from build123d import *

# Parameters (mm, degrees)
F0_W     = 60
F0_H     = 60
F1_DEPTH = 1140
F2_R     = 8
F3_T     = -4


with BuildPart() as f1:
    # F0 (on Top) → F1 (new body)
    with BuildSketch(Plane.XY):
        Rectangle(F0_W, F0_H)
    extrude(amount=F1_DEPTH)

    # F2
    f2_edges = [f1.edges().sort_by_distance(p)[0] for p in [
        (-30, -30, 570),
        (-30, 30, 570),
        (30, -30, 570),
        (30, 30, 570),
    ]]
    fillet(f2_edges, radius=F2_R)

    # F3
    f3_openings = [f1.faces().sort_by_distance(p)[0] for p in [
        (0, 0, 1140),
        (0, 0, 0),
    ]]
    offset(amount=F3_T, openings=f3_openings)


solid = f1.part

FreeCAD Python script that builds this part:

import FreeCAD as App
import Part
import Sketcher
from FreeCAD import Vector


def edges_at(feature, points):
    """Names of the edges that pass closest to the given points."""
    edges = feature.Shape.Edges
    near = lambda p: min(range(len(edges)), key=lambda i: edges[i].distToShape(Part.Vertex(*p))[0])
    return sorted({f"Edge{near(p) + 1}" for p in points})


def faces_at(feature, points):
    """Names of the faces that lie closest to the given points."""
    faces = feature.Shape.Faces
    near = lambda p: min(range(len(faces)), key=lambda i: faces[i].distToShape(Part.Vertex(*p))[0])
    return sorted({f"Face{near(p) + 1}" for p in points})

doc = App.newDocument("Part")
body = doc.addObject("PartDesign::Body", "Body")

# Sketch on XY plane
sketch1 = body.newObject("Sketcher::SketchObject", "Sketch")
sketch1.AttachmentSupport = (doc.getObject("XY_Plane"), [""])
sketch1.MapMode = "FlatFace"
sketch1.addGeometry([
    Part.LineSegment(Vector(-30, 30, 0), Vector(-30, -30, 0)),
    Part.LineSegment(Vector(-30, -30, 0), Vector(30, -30, 0)),
    Part.LineSegment(Vector(30, -30, 0), Vector(30, 30, 0)),
    Part.LineSegment(Vector(30, 30, 0), Vector(-30, 30, 0)),
], False)
sketch1.addConstraint([
    Sketcher.Constraint("Coincident", 0, 2, 1, 1),
    Sketcher.Constraint("Coincident", 1, 2, 2, 1),
    Sketcher.Constraint("Coincident", 2, 2, 3, 1),
    Sketcher.Constraint("Coincident", 3, 2, 0, 1),
    Sketcher.Constraint("Vertical", 0),
    Sketcher.Constraint("Horizontal", 1),
    Sketcher.Constraint("Vertical", 2),
    Sketcher.Constraint("Horizontal", 3),
    Sketcher.Constraint("Symmetric", 0, 2, 2, 2, -1, 1),
    Sketcher.Constraint("Equal", 3, 0),
    Sketcher.Constraint("DistanceX", 1, 1, 1, 2, 60.0),
])
pad1 = body.newObject("PartDesign::Pad", "Pad")
pad1.Profile = sketch1
pad1.Length = 1140
doc.recompute()

fillet = body.newObject("PartDesign::Fillet", "Fillet")
fillet.Base = (pad1, edges_at(pad1, [
    (-30, -30, 570),
    (-30, 30, 570),
    (30, -30, 570),
    (30, 30, 570),
]))
fillet.Radius = 8
doc.recompute()

thickness = body.newObject("PartDesign::Thickness", "Thickness")
thickness.Base = (fillet, faces_at(fillet, [(0, 0, 1140), (0, 0, 0)]))
thickness.Value = 4
thickness.Reversed = True
thickness.Join = "Arc"

doc.recompute()
